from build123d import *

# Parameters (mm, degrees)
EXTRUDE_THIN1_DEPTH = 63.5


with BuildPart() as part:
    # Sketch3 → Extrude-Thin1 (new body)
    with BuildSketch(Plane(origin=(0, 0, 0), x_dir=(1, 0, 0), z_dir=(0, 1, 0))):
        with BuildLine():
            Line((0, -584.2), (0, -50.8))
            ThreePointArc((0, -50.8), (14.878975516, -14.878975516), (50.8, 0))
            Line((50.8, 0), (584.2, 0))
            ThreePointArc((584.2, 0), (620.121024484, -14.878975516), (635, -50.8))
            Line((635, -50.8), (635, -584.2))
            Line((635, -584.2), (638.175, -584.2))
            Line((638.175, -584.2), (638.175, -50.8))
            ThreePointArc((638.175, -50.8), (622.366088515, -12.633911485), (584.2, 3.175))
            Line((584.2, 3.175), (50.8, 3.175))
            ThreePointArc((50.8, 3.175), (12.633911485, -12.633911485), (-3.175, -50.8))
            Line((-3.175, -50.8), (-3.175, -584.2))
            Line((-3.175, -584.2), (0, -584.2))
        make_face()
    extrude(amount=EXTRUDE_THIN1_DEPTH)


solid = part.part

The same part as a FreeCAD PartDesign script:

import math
import FreeCAD as App
import Part
import Sketcher
Q = App.Units.Quantity

doc = App.newDocument("Part")
params = doc.addObject("Spreadsheet::Sheet", "Params")
for row, (alias, value) in enumerate([
    ("sketch1_radius", "2 in"),
    ("sketch1_width", "21 in"),
    ("sketch1_radius2", "2.125 in"),
    ("pad1_length", "2.5 in"),
], start=1):
    params.set(f"A{row}", alias)
    params.set(f"B{row}", "=" + value)
    params.setAlias(f"B{row}", alias)

body = doc.addObject("PartDesign::Body", "Body")

sketch1 = doc.addObject("Sketcher::SketchObject", "Sketch")
body.addObject(sketch1)
sketch1.AttachmentSupport = (doc.XZ_Plane, [""])
sketch1.MapMode = "FlatFace"
sketch1.addGeometry(Part.LineSegment(App.Vector(0, 584.2, 0), App.Vector(0, 50.8, 0)), False)
sketch1.addGeometry(Part.ArcOfCircle(Part.Circle(App.Vector(50.8, 50.8, 0), App.Vector(0, 0, 1), 50.8), math.radians(-180), math.radians(-90)), False)
sketch1.addGeometry(Part.LineSegment(App.Vector(50.8, 0, 0), App.Vector(584.2, 0, 0)), False)
sketch1.addGeometry(Part.ArcOfCircle(Part.Circle(App.Vector(584.2, 50.8, 0), App.Vector(0, 0, 1), 50.8), math.radians(-90), math.radians(0)), False)
sketch1.addGeometry(Part.LineSegment(App.Vector(635, 50.8, 0), App.Vector(635, 584.2, 0)), False)
sketch1.addGeometry(Part.LineSegment(App.Vector(635, 584.2, 0), App.Vector(638.2, 584.2, 0)), False)
sketch1.addGeometry(Part.LineSegment(App.Vector(638.2, 584.2, 0), App.Vector(638.2, 50.8, 0)), False)
sketch1.addGeometry(Part.ArcOfCircle(Part.Circle(App.Vector(584.2, 50.8, 0), App.Vector(0, 0, 1), 54), math.radians(-90), math.radians(0)), False)
sketch1.addGeometry(Part.LineSegment(App.Vector(584.2, -3.2, 0), App.Vector(50.8, -3.2, 0)), False)
sketch1.addGeometry(Part.ArcOfCircle(Part.Circle(App.Vector(50.8, 50.8, 0), App.Vector(0, 0, 1), 54), math.radians(180), math.radians(270)), False)
sketch1.addGeometry(Part.LineSegment(App.Vector(-3.2, 50.8, 0), App.Vector(-3.2, 584.2, 0)), False)
sketch1.addGeometry(Part.LineSegment(App.Vector(-3.2, 584.2, 0), App.Vector(0, 584.2, 0)), False)
sketch1.addConstraint(Sketcher.Constraint("Tangent", 0, 2, 1, 1))
sketch1.addConstraint(Sketcher.Constraint("Tangent", 1, 2, 2, 1))
sketch1.addConstraint(Sketcher.Constraint("Tangent", 2, 2, 3, 1))
sketch1.addConstraint(Sketcher.Constraint("Tangent", 3, 2, 4, 1))
sketch1.addConstraint(Sketcher.Constraint("Coincident", 4, 2, 5, 1))
sketch1.addConstraint(Sketcher.Constraint("Coincident", 5, 2, 6, 1))
sketch1.addConstraint(Sketcher.Constraint("Tangent", 6, 2, 7, 2))
sketch1.addConstraint(Sketcher.Constraint("Tangent", 7, 1, 8, 1))
sketch1.addConstraint(Sketcher.Constraint("Tangent", 8, 2, 9, 2))
sketch1.addConstraint(Sketcher.Constraint("Tangent", 9, 1, 10, 1))
sketch1.addConstraint(Sketcher.Constraint("Coincident", 10, 2, 11, 1))
sketch1.addConstraint(Sketcher.Constraint("Coincident", 11, 2, 0, 1))
sketch1.addConstraint(Sketcher.Constraint("Vertical", 0))
sketch1.addConstraint(Sketcher.Constraint("Horizontal", 2))
sketch1.addConstraint(Sketcher.Constraint("Vertical", 4))
sketch1.addConstraint(Sketcher.Constraint("Horizontal", 5))
sketch1.addConstraint(Sketcher.Constraint("Vertical", 6))
sketch1.addConstraint(Sketcher.Constraint("Horizontal", 8))
sketch1.addConstraint(Sketcher.Constraint("Vertical", 10))
sketch1.addConstraint(Sketcher.Constraint("Horizontal", 11))
sketch1.addConstraint(Sketcher.Constraint("Coincident", 7, 3, 3, 3))
sketch1.addConstraint(Sketcher.Constraint("Coincident", 9, 3, 1, 3))
sketch1.addConstraint(Sketcher.Constraint("Equal", 1, 3))
sketch1.addConstraint(Sketcher.Constraint("PointOnObject", 0, 2, -2))
sketch1.addConstraint(Sketcher.Constraint("PointOnObject", 1, 2, -1))
sketch1.addConstraint(Sketcher.Constraint("Horizontal", 5, 2, 10, 2))
sketch1.addConstraint(Sketcher.Constraint("Equal", 8, 0))
sketch1.addConstraint(Sketcher.Constraint("Radius", 1, Q("2 in")))
sketch1.addConstraint(Sketcher.Constraint("DistanceX", 2, 1, 2, 2, Q("21 in")))
sketch1.addConstraint(Sketcher.Constraint("Radius", 7, Q("2.125 in")))
sketch1.setExpression("Constraints[27]", "Params.sketch1_radius")
sketch1.setExpression("Constraints[28]", "Params.sketch1_width")
sketch1.setExpression("Constraints[29]", "Params.sketch1_radius2")
pad1 = doc.addObject("PartDesign::Pad", "Pad")
body.addObject(pad1)
pad1.Profile = sketch1
pad1.setExpression("Length", "Params.pad1_length")
pad1.Reversed = True

doc.recompute()
